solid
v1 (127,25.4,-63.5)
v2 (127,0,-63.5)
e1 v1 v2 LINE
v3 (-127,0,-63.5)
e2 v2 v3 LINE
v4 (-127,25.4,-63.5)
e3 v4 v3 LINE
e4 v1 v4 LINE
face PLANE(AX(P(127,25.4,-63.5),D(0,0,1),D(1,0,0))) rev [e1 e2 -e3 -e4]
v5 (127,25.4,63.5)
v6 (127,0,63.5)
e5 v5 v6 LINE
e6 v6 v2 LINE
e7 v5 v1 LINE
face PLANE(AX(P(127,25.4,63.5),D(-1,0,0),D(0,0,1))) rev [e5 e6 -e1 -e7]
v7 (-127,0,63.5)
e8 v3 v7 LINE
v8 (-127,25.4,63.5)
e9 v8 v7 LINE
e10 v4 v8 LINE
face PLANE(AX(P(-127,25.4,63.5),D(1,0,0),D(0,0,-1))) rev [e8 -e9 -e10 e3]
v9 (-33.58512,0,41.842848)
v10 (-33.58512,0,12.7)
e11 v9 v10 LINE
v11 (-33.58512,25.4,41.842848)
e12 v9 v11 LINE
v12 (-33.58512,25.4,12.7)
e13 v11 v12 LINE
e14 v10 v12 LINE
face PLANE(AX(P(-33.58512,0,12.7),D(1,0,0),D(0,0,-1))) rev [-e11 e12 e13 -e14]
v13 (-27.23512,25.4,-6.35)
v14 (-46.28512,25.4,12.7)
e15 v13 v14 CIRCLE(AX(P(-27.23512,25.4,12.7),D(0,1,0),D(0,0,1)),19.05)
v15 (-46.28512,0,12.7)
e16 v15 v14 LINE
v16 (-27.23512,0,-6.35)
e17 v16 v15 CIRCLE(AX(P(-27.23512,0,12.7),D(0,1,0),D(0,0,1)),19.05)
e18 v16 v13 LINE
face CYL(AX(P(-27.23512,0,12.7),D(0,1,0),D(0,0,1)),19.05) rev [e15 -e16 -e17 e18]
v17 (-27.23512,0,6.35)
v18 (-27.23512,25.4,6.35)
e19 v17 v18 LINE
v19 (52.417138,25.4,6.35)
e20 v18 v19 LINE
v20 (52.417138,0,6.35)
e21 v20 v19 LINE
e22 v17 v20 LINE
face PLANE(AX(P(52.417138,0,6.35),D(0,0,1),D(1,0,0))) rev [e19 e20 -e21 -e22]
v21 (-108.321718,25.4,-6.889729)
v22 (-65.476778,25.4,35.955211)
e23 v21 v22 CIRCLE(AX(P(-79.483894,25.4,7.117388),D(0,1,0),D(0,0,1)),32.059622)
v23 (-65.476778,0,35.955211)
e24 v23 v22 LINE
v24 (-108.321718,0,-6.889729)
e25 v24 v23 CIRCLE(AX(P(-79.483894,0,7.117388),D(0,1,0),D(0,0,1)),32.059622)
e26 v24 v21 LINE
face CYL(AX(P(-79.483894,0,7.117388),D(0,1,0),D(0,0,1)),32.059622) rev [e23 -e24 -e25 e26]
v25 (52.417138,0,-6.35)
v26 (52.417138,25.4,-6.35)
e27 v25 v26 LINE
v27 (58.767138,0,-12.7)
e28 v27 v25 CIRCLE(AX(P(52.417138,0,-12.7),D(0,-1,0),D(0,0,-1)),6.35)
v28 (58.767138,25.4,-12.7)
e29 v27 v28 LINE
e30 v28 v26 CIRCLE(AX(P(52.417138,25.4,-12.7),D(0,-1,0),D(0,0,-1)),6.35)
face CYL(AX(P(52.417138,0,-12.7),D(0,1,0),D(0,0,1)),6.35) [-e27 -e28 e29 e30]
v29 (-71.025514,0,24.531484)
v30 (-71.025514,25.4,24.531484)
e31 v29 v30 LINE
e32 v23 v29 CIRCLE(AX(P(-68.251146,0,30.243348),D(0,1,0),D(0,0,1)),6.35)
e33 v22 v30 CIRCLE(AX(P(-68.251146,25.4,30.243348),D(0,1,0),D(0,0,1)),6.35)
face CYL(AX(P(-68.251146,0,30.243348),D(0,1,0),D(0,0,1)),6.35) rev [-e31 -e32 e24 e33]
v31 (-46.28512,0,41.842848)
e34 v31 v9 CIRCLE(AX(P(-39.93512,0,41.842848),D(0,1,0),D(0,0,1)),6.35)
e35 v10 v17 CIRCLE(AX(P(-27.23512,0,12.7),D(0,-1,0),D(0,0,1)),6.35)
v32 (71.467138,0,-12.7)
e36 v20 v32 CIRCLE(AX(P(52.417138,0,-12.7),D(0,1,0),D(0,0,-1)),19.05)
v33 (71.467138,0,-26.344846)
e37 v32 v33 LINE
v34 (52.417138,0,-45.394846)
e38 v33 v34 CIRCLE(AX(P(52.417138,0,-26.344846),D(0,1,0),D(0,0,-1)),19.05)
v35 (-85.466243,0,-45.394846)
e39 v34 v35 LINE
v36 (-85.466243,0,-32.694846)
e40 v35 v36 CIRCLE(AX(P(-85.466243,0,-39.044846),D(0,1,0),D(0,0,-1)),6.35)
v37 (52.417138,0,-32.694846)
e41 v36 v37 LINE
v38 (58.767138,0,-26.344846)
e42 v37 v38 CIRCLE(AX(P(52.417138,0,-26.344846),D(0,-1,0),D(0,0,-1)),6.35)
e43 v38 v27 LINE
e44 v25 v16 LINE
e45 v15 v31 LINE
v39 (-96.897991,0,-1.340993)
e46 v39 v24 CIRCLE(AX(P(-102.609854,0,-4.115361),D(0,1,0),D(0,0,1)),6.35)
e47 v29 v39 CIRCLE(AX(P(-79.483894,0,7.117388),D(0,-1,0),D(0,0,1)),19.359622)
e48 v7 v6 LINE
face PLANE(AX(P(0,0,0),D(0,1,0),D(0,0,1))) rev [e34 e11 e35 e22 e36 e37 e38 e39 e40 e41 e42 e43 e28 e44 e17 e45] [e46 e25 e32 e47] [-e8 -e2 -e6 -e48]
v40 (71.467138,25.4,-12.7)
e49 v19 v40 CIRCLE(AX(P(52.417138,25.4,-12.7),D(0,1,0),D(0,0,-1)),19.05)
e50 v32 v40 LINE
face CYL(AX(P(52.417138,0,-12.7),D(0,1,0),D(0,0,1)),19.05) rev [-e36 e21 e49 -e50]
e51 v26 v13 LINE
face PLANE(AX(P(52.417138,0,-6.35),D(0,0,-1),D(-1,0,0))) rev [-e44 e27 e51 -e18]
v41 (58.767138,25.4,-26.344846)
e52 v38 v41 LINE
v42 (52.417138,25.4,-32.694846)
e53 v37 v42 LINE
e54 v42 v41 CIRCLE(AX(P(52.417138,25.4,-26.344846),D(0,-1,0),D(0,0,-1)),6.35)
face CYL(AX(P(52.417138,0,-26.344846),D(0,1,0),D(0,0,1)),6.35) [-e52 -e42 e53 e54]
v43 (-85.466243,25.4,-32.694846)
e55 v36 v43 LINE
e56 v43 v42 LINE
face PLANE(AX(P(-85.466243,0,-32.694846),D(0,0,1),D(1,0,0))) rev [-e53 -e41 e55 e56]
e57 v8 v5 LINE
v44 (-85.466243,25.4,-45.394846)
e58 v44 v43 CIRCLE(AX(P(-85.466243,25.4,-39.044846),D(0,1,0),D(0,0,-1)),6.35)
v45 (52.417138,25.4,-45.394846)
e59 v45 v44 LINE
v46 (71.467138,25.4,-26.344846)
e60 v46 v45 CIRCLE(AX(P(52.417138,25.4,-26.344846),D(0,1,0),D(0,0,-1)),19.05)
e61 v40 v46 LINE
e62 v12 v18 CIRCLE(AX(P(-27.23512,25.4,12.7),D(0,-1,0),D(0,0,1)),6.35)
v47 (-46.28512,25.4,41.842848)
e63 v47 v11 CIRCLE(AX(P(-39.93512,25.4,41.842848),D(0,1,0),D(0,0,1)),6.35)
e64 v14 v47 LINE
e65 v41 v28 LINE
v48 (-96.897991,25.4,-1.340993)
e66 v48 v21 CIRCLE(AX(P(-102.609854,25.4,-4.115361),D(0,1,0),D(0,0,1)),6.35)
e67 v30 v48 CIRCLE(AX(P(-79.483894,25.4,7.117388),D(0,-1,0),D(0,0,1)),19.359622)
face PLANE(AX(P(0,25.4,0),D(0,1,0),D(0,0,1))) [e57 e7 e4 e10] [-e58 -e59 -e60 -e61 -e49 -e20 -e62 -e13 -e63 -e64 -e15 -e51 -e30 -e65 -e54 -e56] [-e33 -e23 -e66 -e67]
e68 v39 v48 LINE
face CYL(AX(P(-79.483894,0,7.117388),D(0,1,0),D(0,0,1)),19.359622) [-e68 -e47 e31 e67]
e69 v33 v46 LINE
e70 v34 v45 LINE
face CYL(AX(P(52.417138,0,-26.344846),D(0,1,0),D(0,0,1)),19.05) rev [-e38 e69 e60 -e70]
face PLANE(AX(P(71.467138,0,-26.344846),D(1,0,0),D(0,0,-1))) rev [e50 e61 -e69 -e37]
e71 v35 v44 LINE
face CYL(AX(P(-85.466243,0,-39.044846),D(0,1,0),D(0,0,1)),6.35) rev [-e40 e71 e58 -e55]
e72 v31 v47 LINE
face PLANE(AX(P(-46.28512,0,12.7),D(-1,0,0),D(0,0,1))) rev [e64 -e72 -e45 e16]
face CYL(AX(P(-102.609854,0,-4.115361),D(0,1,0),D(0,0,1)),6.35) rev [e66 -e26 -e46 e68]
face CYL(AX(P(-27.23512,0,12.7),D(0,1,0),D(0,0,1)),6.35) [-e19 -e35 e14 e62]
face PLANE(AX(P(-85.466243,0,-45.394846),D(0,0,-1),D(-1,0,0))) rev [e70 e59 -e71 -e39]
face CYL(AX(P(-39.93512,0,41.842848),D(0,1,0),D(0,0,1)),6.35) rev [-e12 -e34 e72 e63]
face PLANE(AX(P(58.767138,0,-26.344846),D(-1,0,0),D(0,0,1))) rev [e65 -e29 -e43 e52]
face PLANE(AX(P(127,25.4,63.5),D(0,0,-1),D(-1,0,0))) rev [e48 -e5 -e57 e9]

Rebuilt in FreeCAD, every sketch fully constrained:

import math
import FreeCAD as App
import Part
import Sketcher
from FreeCAD import Vector
Q = App.Units.Quantity


def add_polygon(sketch, points):
    """Adds a closed chain of lines whose ends are joined by coincident constraints."""
    first, n = sketch.GeometryCount, len(points)
    for a, b in zip(points, points[1:] + points[:1]):
        sketch.addGeometry(Part.LineSegment(App.Vector(*a, 0), App.Vector(*b, 0)), False)
    for i in range(n):
        sketch.addConstraint(Sketcher.Constraint("Coincident", first + i, 2, first + (i + 1) % n, 1))

doc = App.newDocument("Part")
body = doc.addObject("PartDesign::Body", "Body")

sketch1 = body.newObject("Sketcher::SketchObject", "Sketch")
sketch1.AttachmentSupport = (doc.getObject("XZ_Plane"), [""])
sketch1.MapMode = "FlatFace"
add_polygon(sketch1, [(-127, -63.5), (-127, 63.5), (127, 63.5), (127, -63.5)])
sketch1.addConstraint(Sketcher.Constraint("Vertical", 0))
sketch1.addConstraint(Sketcher.Constraint("Horizontal", 1))
sketch1.addConstraint(Sketcher.Constraint("Vertical", 2))
sketch1.addConstraint(Sketcher.Constraint("Horizontal", 3))
sketch1.addConstraint(Sketcher.Constraint("Symmetric", 0, 2, 2, 2, -1, 1))
sketch1.addConstraint(Sketcher.Constraint("DistanceX", 1, 1, 1, 2, Q("10 in")))
sketch1.addConstraint(Sketcher.Constraint("DistanceY", 0, 1, 0, 2, Q("5 in")))
pad1 = body.newObject("PartDesign::Pad", "Pad")
pad1.Profile = sketch1
pad1.Length = Q("1 in")
pad1.Reversed = True

sketch2 = body.newObject("Sketcher::SketchObject", "Sketch001")
sketch2.AttachmentSupport = (doc.getObject("XZ_Plane"), [""])
sketch2.MapMode = "FlatFace"
sketch2.AttachmentOffset = App.Placement(Vector(0, 0, -1 * 25.4), App.Rotation())
sketch2.addGeometry(Part.LineSegment(Vector(-85.466243, -32.694846, 0), Vector(52.417138, -32.694846, 0)), False)
sketch2.addGeometry(Part.ArcOfCircle(Part.Circle(Vector(52.417138, -26.344846, 0), Vector(0, 0, 1), 6.35), math.radians(-90), math.radians(0)), False)
sketch2.addGeometry(Part.LineSegment(Vector(58.767138, -26.344846, 0), Vector(58.767138, -12.7, 0)), False)
sketch2.addGeometry(Part.ArcOfCircle(Part.Circle(Vector(52.417138, -12.7, 0), Vector(0, 0, 1), 6.35), math.radians(0), math.radians(90)), False)
sketch2.addGeometry(Part.LineSegment(Vector(52.417138, -6.35, 0), Vector(-27.23512, -6.35, 0)), False)
sketch2.addGeometry(Part.ArcOfCircle(Part.Circle(Vector(-27.23512, 12.7, 0), Vector(0, 0, 1), 19.05), math.radians(180), math.radians(270)), False)
sketch2.addGeometry(Part.LineSegment(Vector(-46.28512, 12.7, 0), Vector(-46.28512, 41.842848, 0)), False)
sketch2.addGeometry(Part.ArcOfCircle(Part.Circle(Vector(-39.93512, 41.842848, 0), Vector(0, 0, 1), 6.35), math.radians(0), math.radians(180)), False)
sketch2.addGeometry(Part.LineSegment(Vector(-33.58512, 41.842848, 0), Vector(-33.58512, 12.7, 0)), False)
sketch2.addGeometry(Part.ArcOfCircle(Part.Circle(Vector(-27.23512, 12.7, 0), Vector(0, 0, 1), 6.35), math.radians(180), math.radians(270)), False)
sketch2.addGeometry(Part.LineSegment(Vector(-27.23512, 6.35, 0), Vector(52.417138, 6.35, 0)), False)
sketch2.addGeometry(Part.ArcOfCircle(Part.Circle(Vector(52.417138, -12.7, 0), Vector(0, 0, 1), 19.05), math.radians(0), math.radians(90)), False)
sketch2.addGeometry(Part.LineSegment(Vector(71.467138, -12.7, 0), Vector(71.467138, -26.344846, 0)), False)
sketch2.addGeometry(Part.ArcOfCircle(Part.Circle(Vector(52.417138, -26.344846, 0), Vector(0, 0, 1), 19.05), math.radians(-90), math.radians(0)), False)
sketch2.addGeometry(Part.LineSegment(Vector(52.417138, -45.394846, 0), Vector(-85.466243, -45.394846, 0)), False)
sketch2.addGeometry(Part.ArcOfCircle(Part.Circle(Vector(-85.466243, -39.044846, 0), Vector(0, 0, 1), 6.35), math.radians(90), math.radians(270)), False)
sketch2.addConstraint(Sketcher.Constraint("Tangent", 0, 2, 1, 1))
sketch2.addConstraint(Sketcher.Constraint("Tangent", 1, 2, 2, 1))
sketch2.addConstraint(Sketcher.Constraint("Tangent", 2, 2, 3, 1))
sketch2.addConstraint(Sketcher.Constraint("Tangent", 3, 2, 4, 1))
sketch2.addConstraint(Sketcher.Constraint("Tangent", 4, 2, 5, 2))
sketch2.addConstraint(Sketcher.Constraint("Tangent", 5, 1, 6, 1))
sketch2.addConstraint(Sketcher.Constraint("Tangent", 6, 2, 7, 2))
sketch2.addConstraint(Sketcher.Constraint("Tangent", 7, 1, 8, 1))
sketch2.addConstraint(Sketcher.Constraint("Tangent", 8, 2, 9, 1))
sketch2.addConstraint(Sketcher.Constraint("Tangent", 9, 2, 10, 1))
sketch2.addConstraint(Sketcher.Constraint("Tangent", 10, 2, 11, 2))
sketch2.addConstraint(Sketcher.Constraint("Tangent", 11, 1, 12, 1))
sketch2.addConstraint(Sketcher.Constraint("Tangent", 12, 2, 13, 2))
sketch2.addConstraint(Sketcher.Constraint("Tangent", 13, 1, 14, 1))
sketch2.addConstraint(Sketcher.Constraint("Tangent", 14, 2, 15, 2))
sketch2.addConstraint(Sketcher.Constraint("Tangent", 15, 1, 0, 1))
sketch2.addConstraint(Sketcher.Constraint("Horizontal", 0))
sketch2.addConstraint(Sketcher.Constraint("Vertical", 2))
sketch2.addConstraint(Sketcher.Constraint("Horizontal", 4))
sketch2.addConstraint(Sketcher.Constraint("Vertical", 6))
sketch2.addConstraint(Sketcher.Constraint("Vertical", 8))
sketch2.addConstraint(Sketcher.Constraint("Horizontal", 10))
sketch2.addConstraint(Sketcher.Constraint("Vertical", 12))
sketch2.addConstraint(Sketcher.Constraint("Horizontal", 14))
sketch2.addConstraint(Sketcher.Constraint("Coincident", 9, 3, 5, 3))
sketch2.addConstraint(Sketcher.Constraint("Coincident", 11, 3, 3, 3))
sketch2.addConstraint(Sketcher.Constraint("Coincident", 13, 3, 1, 3))
sketch2.addConstraint(Sketcher.Constraint("Equal", 1, 3))
sketch2.addConstraint(Sketcher.Constraint("Equal", 3, 7))
sketch2.addConstraint(Sketcher.Constraint("Equal", 7, 9))
sketch2.addConstraint(Sketcher.Constraint("Radius", 1, Q("0.25 in")))
sketch2.addConstraint(Sketcher.Constraint("DistanceY", 3, 3, -1, 1, Q("0.5 in")))
sketch2.addConstraint(Sketcher.Constraint("DistanceX", 0, 1, 0, 2, Q("137.883381 mm")))
sketch2.addConstraint(Sketcher.Constraint("DistanceY", 6, 1, 6, 2, Q("29.142848 mm")))
sketch2.addConstraint(Sketcher.Constraint("DistanceX", 4, 2, 4, 1, Q("79.652258 mm")))
sketch2.addConstraint(Sketcher.Constraint("DistanceY", 2, 1, 2, 2, Q("13.644846 mm")))
sketch2.addConstraint(Sketcher.Constraint("DistanceX", 5, 3, -1, 1, Q("27.23512 mm")))
pocket1 = body.newObject("PartDesign::Pocket", "Pocket")
pocket1.Profile = sketch2
pocket1.Type = "ThroughAll"
pocket1.Reversed = True

sketch3 = body.newObject("Sketcher::SketchObject", "Sketch002")
sketch3.AttachmentSupport = (doc.getObject("XZ_Plane"), [""])
sketch3.MapMode = "FlatFace"
sketch3.AttachmentOffset = App.Placement(Vector(0, 0, -1 * 25.4), App.Rotation())
sketch3.addGeometry(Part.ArcOfCircle(Part.Circle(Vector(-79.483894, 7.117388, 0), Vector(0, 0, 1), 32.059622), math.radians(64.093213), math.radians(205.906787)), False)
sketch3.addGeometry(Part.ArcOfCircle(Part.Circle(Vector(-68.251146, 30.243348, 0), Vector(0, 0, 1), 6.35), math.radians(-115.906787), math.radians(64.093213)), False)
sketch3.addGeometry(Part.ArcOfCircle(Part.Circle(Vector(-79.483894, 7.117388, 0), Vector(0, 0, 1), 19.359622), math.radians(64.093213), math.radians(205.906787)), False)
sketch3.addGeometry(Part.ArcOfCircle(Part.Circle(Vector(-102.609854, -4.115361, 0), Vector(0, 0, 1), 6.35), math.radians(-154.093213), math.radians(25.906787)), False)
sketch3.addConstraint(Sketcher.Constraint("Tangent", 0, 1, 1, 2))
sketch3.addConstraint(Sketcher.Constraint("Tangent", 1, 1, 2, 1))
sketch3.addConstraint(Sketcher.Constraint("Tangent", 2, 2, 3, 2))
sketch3.addConstraint(Sketcher.Constraint("Tangent", 3, 1, 0, 2))
sketch3.addConstraint(Sketcher.Constraint("Coincident", 2, 3, 0, 3))
sketch3.addConstraint(Sketcher.Constraint("Radius", 1, Q("0.25 in")))
sketch3.addConstraint(Sketcher.Constraint("Radius", 0, Q("32.059622 mm")))
sketch3.addConstraint(Sketcher.Constraint("DistanceY", 3, 3, -1, 1, Q("4.115361 mm")))
sketch3.addConstraint(Sketcher.Constraint("DistanceY", -1, 1, 0, 1, Q("35.955211 mm")))
sketch3.addConstraint(Sketcher.Constraint("DistanceX", 2, 2, -1, 1, Q("96.897991 mm")))
sketch3.addConstraint(Sketcher.Constraint("DistanceY", 3, 1, -1, 1, Q("6.889729 mm")))
pocket2 = body.newObject("PartDesign::Pocket", "Pocket001")
pocket2.Profile = sketch3
pocket2.Type = "ThroughAll"
pocket2.Reversed = True

doc.recompute()
